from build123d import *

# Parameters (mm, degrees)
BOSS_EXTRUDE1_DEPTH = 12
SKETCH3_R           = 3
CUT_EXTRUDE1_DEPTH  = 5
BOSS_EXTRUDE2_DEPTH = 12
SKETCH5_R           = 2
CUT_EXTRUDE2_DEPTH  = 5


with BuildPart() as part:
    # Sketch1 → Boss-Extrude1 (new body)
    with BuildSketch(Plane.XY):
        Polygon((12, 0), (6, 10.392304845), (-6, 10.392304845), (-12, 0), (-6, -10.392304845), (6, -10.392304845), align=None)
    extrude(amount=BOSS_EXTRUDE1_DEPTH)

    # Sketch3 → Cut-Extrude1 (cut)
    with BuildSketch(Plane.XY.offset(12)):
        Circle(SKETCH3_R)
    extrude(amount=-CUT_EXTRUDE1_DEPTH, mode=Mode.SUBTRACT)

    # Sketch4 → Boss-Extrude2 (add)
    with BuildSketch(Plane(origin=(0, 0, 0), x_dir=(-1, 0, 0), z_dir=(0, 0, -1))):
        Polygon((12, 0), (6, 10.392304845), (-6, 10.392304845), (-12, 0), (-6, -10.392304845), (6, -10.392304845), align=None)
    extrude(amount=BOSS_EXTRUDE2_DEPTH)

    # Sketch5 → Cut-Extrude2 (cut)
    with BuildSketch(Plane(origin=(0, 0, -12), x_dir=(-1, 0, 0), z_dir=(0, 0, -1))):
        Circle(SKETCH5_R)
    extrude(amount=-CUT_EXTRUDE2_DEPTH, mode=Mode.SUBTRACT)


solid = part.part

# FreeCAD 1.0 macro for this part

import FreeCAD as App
import Part
import Sketcher
from FreeCAD import Vector
Q = App.Units.Quantity


def add_polygon(sketch, points):
    """Adds a closed chain of lines whose ends are joined by coincident constraints."""
    first, n = sketch.GeometryCount, len(points)
    for a, b in zip(points, points[1:] + points[:1]):
        sketch.addGeometry(Part.LineSegment(App.Vector(*a, 0), App.Vector(*b, 0)), False)
    for i in range(n):
        sketch.addConstraint(Sketcher.Constraint("Coincident", first + i, 2, first + (i + 1) % n, 1))

doc = App.newDocument("Part")
params = doc.addObject("Spreadsheet::Sheet", "Params")
for row, (alias, value) in enumerate([
    ("sketch1_width", "12 mm"),
    ("sketch1_length", "12 mm"),
    ("pad1_length", "12 mm"),
    ("sketch2_diameter", "6 mm"),
    ("pocket1_length", "5 mm"),
    ("sketch3_width", "12 mm"),
    ("sketch3_length", "12 mm"),
    ("pad2_length", "12 mm"),
    ("sketch4_diameter", "4 mm"),
    ("pocket2_length", "5 mm"),
], start=1):
    params.set(f"A{row}", alias)
    params.set(f"B{row}", "=" + value)
    params.setAlias(f"B{row}", alias)

body = doc.addObject("PartDesign::Body", "Body")

# Sketch on XY plane
sketch1 = body.newObject("Sketcher::SketchObject", "Sketch")
sketch1.AttachmentSupport = (doc.getObject("XY_Plane"), [""])
sketch1.MapMode = "FlatFace"
add_polygon(sketch1, [(12, 0), (6, 10.392305), (-6, 10.392305), (-12, 0), (-6, -10.392305), (6, -10.392305)])  # lines 0-5
sketch1.addConstraint([
    Sketcher.Constraint("Horizontal", 1),
    Sketcher.Constraint("Horizontal", 4),
    Sketcher.Constraint("Symmetric", 0, 2, 3, 2, -1, 1),
    Sketcher.Constraint("Symmetric", 2, 2, 5, 2, -1, 1),
    Sketcher.Constraint("PointOnObject", 2, 2, -1),
    Sketcher.Constraint("Parallel", 2, 5),
    Sketcher.Constraint("Vertical", 1, 2, 3, 2),
    Sketcher.Constraint("DistanceX", 1, 2, 1, 1, 12.0),
    Sketcher.Constraint("Angle", 0, Q("120 deg")),
    Sketcher.Constraint("Distance", 0, 12.0),
])
sketch1.setExpression("Constraints[13]", "Params.sketch1_width")
sketch1.setExpression("Constraints[15]", "Params.sketch1_length")
pad1 = body.newObject("PartDesign::Pad", "Pad")
pad1.Profile = sketch1
pad1.setExpression("Length", "Params.pad1_length")

# Sketch on XY plane
sketch2 = body.newObject("Sketcher::SketchObject", "Sketch001")
sketch2.AttachmentSupport = (doc.getObject("XY_Plane"), [""])
sketch2.MapMode = "FlatFace"
sketch2.AttachmentOffset = App.Placement(Vector(0, 0, 12), App.Rotation())
sketch2.addGeometry(Part.Circle(Vector(0, 0, 0), Vector(0, 0, 1), 3), False)
sketch2.addConstraint([
    Sketcher.Constraint("Coincident", 0, 3, -1, 1),
    Sketcher.Constraint("Diameter", 0, 6.0),
])
sketch2.setExpression("Constraints[1]", "Params.sketch2_diameter")
pocket1 = body.newObject("PartDesign::Pocket", "Pocket")
pocket1.Profile = sketch2
pocket1.setExpression("Length", "Params.pocket1_length")

# Sketch on XY plane
sketch3 = body.newObject("Sketcher::SketchObject", "Sketch002")
sketch3.AttachmentSupport = (doc.getObject("XY_Plane"), [""])
sketch3.MapMode = "FlatFace"
add_polygon(sketch3, [(-12, 0), (-6, 10.392305), (6, 10.392305), (12, 0), (6, -10.392305), (-6, -10.392305)])  # lines 0-5
sketch3.addConstraint([
    Sketcher.Constraint("Horizontal", 1),
    Sketcher.Constraint("Horizontal", 4),
    Sketcher.Constraint("Symmetric", 0, 2, 3, 2, -1, 1),
    Sketcher.Constraint("Symmetric", 2, 2, 5, 2, -1, 1),
    Sketcher.Constraint("PointOnObject", 2, 2, -1),
    Sketcher.Constraint("Parallel", 2, 5),
    Sketcher.Constraint("Vertical", 1, 2, 3, 2),
    Sketcher.Constraint("DistanceX", 1, 1, 1, 2, 12.0),
    Sketcher.Constraint("Angle", 0, Q("60 deg")),
    Sketcher.Constraint("Distance", 0, 12.0),
])
sketch3.setExpression("Constraints[13]", "Params.sketch3_width")
sketch3.setExpression("Constraints[15]", "Params.sketch3_length")
pad2 = body.newObject("PartDesign::Pad", "Pad001")
pad2.Profile = sketch3
pad2.setExpression("Length", "Params.pad2_length")
pad2.Reversed = True

# Sketch on XY plane
sketch4 = body.newObject("Sketcher::SketchObject", "Sketch003")
sketch4.AttachmentSupport = (doc.getObject("XY_Plane"), [""])
sketch4.MapMode = "FlatFace"
sketch4.AttachmentOffset = App.Placement(Vector(0, 0, -12), App.Rotation())
sketch4.addGeometry(Part.Circle(Vector(0, 0, 0), Vector(0, 0, 1), 2), False)
sketch4.addConstraint([
    Sketcher.Constraint("Coincident", 0, 3, -1, 1),
    Sketcher.Constraint("Diameter", 0, 4.0),
])
sketch4.setExpression("Constraints[1]", "Params.sketch4_diameter")
pocket2 = body.newObject("PartDesign::Pocket", "Pocket001")
pocket2.Profile = sketch4
pocket2.setExpression("Length", "Params.pocket2_length")
pocket2.Reversed = True

doc.recompute()
